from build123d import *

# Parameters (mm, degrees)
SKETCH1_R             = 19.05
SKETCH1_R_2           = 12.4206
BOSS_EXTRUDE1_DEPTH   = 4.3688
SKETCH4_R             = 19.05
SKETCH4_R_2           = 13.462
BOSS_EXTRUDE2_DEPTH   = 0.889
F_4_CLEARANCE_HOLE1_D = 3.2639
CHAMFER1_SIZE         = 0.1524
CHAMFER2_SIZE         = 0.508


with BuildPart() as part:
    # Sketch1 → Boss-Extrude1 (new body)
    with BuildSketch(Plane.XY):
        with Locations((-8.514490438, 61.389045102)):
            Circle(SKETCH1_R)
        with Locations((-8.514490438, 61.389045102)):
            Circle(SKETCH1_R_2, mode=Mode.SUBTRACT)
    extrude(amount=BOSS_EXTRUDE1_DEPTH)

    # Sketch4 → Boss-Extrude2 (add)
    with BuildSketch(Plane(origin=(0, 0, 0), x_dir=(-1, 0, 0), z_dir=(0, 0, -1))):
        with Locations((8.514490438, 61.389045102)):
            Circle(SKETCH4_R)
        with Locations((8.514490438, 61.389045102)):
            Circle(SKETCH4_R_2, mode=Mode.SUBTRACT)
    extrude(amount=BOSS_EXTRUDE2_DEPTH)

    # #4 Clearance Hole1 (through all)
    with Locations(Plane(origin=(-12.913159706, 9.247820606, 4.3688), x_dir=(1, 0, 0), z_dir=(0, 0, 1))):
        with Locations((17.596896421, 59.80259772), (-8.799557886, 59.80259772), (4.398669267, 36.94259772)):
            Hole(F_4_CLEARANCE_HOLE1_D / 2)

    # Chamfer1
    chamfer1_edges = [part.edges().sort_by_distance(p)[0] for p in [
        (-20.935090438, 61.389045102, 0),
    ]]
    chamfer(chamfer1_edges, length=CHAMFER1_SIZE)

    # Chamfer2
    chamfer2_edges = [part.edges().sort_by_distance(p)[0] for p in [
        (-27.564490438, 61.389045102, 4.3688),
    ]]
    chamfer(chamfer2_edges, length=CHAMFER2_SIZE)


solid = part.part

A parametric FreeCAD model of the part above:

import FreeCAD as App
import Part
import Sketcher
Q = App.Units.Quantity


def edges_at(feature, points):
    """Names of the edges that pass closest to the given points."""
    edges = feature.Shape.Edges
    near = lambda p: min(range(len(edges)), key=lambda i: edges[i].distToShape(Part.Vertex(*p))[0])
    return sorted({f"Edge{near(p) + 1}" for p in points})

doc = App.newDocument("Part")
body = doc.addObject("PartDesign::Body", "Body")

# Sketch on XY plane
sketch1 = doc.addObject("Sketcher::SketchObject", "Sketch")
body.addObject(sketch1)
sketch1.AttachmentSupport = (doc.XY_Plane, [""])
sketch1.MapMode = "FlatFace"
sketch1.addGeometry([
    Part.Circle(App.Vector(-8.51449, 61.389045, 0), App.Vector(0, 0, 1), 19.05),
    Part.Circle(App.Vector(-8.51449, 61.389045, 0), App.Vector(0, 0, 1), 12.4206),
], False)
sketch1.addConstraint([
    Sketcher.Constraint("Coincident", 1, 3, 0, 3),
    Sketcher.Constraint("Diameter", 0, Q("1.5 in")),
    Sketcher.Constraint("Diameter", 1, Q("0.978 in")),
    Sketcher.Constraint("DistanceX", 0, 3, -1, 1, 8.51449),
    Sketcher.Constraint("DistanceY", -1, 1, 0, 3, 61.389045),
])
pad1 = doc.addObject("PartDesign::Pad", "Pad")
body.addObject(pad1)
pad1.Profile = sketch1
pad1.Length = Q("0.172 in")

# Sketch on XY plane
sketch2 = doc.addObject("Sketcher::SketchObject", "Sketch001")
body.addObject(sketch2)
sketch2.AttachmentSupport = (doc.XY_Plane, [""])
sketch2.MapMode = "FlatFace"
sketch2.addGeometry([
    Part.Circle(App.Vector(-8.51449, 61.389045, 0), App.Vector(0, 0, 1), 19.05),
    Part.Circle(App.Vector(-8.51449, 61.389045, 0), App.Vector(0, 0, 1), 13.462),
], False)
sketch2.addConstraint([
    Sketcher.Constraint("Coincident", 1, 3, 0, 3),
    Sketcher.Constraint("Diameter", 0, Q("1.5 in")),
    Sketcher.Constraint("Diameter", 1, Q("1.06 in")),
    Sketcher.Constraint("DistanceX", 0, 3, -1, 1, 8.51449),
    Sketcher.Constraint("DistanceY", -1, 1, 0, 3, 61.389045),
])
pad2 = doc.addObject("PartDesign::Pad", "Pad001")
body.addObject(pad2)
pad2.Profile = sketch2
pad2.Length = Q("0.035 in")
pad2.Reversed = True

# Sketch on XY plane
sketch3 = doc.addObject("Sketcher::SketchObject", "Sketch002")
body.addObject(sketch3)
sketch3.AttachmentSupport = (doc.XY_Plane, [""])
sketch3.MapMode = "FlatFace"
sketch3.AttachmentOffset = App.Placement(App.Vector(0, 0, 0.172 * 25.4), App.Rotation())
sketch3.addGeometry([
    Part.Circle(App.Vector(4.683737, 69.050418, 0), App.Vector(0, 0, 1), 1.63195),
    Part.Circle(App.Vector(-21.712718, 69.050418, 0), App.Vector(0, 0, 1), 1.63195),
    Part.Circle(App.Vector(-8.51449, 46.190418, 0), App.Vector(0, 0, 1), 1.63195),
], False)
sketch3.addConstraint([
    Sketcher.Constraint("Equal", 0, 1),
    Sketcher.Constraint("Equal", 1, 2),
    Sketcher.Constraint("Horizontal", 0, 3, 1, 3),
    Sketcher.Constraint("Diameter", 0, Q("0.1285 in")),
    Sketcher.Constraint("DistanceY", 2, 3, 1, 3, Q("0.9 in")),
    Sketcher.Constraint("DistanceY", -1, 1, 0, 3, 69.050418),
    Sketcher.Constraint("DistanceX", 2, 3, -1, 1, 8.51449),
    Sketcher.Constraint("DistanceX", -1, 1, 0, 3, 4.683737),
    Sketcher.Constraint("DistanceX", 1, 3, -1, 1, 21.712718),
])
doc.recompute()
hole = doc.addObject("PartDesign::Hole", "Hole")
body.addObject(hole)
hole.Profile = sketch3
hole.ThreadType = "None"
hole.Diameter = Q("0.1285 in")
hole.DepthType = "ThroughAll"
doc.recompute()

chamfer = doc.addObject("PartDesign::Chamfer", "Chamfer")
body.addObject(chamfer)
chamfer.Base = (hole, edges_at(hole, [(-20.935, 61.389, 0)]))
chamfer.Size = Q("0.006 in")
doc.recompute()

chamfer2 = doc.addObject("PartDesign::Chamfer", "Chamfer001")
body.addObject(chamfer2)
chamfer2.Base = (chamfer, edges_at(chamfer, [(-27.564, 61.389, 4.369)]))
chamfer2.Size = Q("0.02 in")

doc.recompute()
